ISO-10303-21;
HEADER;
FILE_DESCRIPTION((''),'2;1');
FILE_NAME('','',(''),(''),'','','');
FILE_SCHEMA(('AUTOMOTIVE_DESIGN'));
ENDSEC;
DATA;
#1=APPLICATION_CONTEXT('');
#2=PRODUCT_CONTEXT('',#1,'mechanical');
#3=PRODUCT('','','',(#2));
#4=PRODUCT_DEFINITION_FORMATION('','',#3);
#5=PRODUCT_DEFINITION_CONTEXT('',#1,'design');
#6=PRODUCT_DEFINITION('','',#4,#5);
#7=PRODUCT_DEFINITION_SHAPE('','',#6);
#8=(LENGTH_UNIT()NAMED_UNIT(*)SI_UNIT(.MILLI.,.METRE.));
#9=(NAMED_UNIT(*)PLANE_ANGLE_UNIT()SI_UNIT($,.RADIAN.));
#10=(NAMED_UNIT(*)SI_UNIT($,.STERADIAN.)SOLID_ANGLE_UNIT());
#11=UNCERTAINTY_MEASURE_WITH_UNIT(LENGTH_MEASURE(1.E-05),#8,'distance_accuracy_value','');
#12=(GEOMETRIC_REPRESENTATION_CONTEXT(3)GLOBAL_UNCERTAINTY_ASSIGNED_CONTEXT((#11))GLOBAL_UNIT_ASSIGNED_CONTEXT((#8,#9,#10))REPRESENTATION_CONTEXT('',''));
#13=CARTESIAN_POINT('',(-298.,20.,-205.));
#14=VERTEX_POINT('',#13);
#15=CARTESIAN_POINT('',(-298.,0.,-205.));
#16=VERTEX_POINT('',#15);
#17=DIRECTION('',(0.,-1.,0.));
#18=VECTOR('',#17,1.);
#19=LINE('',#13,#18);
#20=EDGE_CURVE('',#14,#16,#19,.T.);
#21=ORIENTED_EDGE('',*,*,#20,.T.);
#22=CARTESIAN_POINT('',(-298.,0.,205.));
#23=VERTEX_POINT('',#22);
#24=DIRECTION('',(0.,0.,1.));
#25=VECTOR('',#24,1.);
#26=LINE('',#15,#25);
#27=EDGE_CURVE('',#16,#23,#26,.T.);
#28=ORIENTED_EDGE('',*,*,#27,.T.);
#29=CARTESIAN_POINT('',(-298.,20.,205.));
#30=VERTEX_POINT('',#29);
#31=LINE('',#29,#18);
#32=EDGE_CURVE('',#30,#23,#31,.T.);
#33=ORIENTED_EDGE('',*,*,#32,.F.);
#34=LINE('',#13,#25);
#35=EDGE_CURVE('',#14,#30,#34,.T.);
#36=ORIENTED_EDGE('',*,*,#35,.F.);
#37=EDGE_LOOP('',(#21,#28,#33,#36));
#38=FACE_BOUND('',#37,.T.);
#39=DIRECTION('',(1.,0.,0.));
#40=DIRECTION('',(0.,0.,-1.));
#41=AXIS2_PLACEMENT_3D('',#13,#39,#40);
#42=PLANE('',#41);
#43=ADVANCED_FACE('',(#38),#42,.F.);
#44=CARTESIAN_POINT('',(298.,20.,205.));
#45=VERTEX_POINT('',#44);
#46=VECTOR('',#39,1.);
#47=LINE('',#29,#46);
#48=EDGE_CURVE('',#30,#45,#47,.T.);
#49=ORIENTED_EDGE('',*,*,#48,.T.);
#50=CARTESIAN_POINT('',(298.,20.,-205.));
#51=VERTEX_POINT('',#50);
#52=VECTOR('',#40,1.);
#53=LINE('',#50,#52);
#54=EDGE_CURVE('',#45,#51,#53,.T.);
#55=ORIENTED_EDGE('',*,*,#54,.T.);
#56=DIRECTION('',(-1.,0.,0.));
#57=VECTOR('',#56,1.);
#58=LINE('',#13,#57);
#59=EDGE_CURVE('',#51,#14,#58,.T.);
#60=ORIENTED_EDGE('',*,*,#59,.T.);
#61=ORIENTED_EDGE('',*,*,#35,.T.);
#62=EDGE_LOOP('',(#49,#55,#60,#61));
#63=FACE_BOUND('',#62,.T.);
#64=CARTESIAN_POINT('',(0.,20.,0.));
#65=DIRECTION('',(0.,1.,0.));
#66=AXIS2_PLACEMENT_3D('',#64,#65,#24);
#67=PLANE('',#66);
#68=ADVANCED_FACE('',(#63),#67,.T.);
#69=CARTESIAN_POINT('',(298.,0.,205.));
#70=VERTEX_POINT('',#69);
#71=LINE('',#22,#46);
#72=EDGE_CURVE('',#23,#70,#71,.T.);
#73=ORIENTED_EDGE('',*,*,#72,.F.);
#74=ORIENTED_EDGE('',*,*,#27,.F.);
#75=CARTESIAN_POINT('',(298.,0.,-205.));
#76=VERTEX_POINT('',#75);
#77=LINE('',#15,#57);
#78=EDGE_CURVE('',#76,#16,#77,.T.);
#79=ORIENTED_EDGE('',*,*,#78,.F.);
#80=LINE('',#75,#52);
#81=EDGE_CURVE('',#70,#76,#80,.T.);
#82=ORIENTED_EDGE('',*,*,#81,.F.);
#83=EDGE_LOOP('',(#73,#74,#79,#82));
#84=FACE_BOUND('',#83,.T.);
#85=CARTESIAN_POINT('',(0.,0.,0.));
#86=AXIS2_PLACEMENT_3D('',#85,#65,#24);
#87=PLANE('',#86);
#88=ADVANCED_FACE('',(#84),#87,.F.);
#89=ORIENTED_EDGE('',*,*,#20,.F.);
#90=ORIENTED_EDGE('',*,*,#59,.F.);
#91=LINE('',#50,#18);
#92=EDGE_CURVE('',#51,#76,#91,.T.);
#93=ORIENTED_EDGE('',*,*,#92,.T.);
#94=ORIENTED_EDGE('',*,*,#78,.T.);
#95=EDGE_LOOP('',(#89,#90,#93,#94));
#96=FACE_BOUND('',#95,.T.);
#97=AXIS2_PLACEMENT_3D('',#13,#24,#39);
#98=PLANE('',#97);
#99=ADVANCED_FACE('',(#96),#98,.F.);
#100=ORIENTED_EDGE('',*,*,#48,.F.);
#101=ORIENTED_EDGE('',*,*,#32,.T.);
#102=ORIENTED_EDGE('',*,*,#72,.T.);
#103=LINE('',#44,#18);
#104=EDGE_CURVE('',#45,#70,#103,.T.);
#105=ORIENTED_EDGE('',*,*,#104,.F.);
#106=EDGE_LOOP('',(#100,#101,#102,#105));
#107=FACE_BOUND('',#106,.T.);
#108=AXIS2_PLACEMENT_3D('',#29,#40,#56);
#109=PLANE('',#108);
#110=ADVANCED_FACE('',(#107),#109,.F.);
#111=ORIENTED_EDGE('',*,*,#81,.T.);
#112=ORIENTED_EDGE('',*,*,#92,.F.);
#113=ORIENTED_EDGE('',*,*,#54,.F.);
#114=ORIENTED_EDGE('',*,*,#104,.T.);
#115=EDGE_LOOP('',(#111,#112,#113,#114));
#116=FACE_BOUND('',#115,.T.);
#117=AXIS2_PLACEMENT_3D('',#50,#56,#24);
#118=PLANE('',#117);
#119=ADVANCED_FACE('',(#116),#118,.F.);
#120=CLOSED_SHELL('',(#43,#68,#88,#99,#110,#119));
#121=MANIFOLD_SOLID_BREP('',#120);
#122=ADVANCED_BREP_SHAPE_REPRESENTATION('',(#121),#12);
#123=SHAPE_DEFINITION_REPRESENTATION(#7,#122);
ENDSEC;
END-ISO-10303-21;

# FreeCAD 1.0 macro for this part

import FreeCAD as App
import Part
import Sketcher
from FreeCAD import Vector


def add_polygon(sketch, points):
    """Adds a closed chain of lines whose ends are joined by coincident constraints."""
    first, n = sketch.GeometryCount, len(points)
    for a, b in zip(points, points[1:] + points[:1]):
        sketch.addGeometry(Part.LineSegment(App.Vector(*a, 0), App.Vector(*b, 0)), False)
    for i in range(n):
        sketch.addConstraint(Sketcher.Constraint("Coincident", first + i, 2, first + (i + 1) % n, 1))

doc = App.newDocument("Part")
body = doc.addObject("PartDesign::Body", "Body")

# Sketch on XZ plane
sketch1 = body.newObject("Sketcher::SketchObject", "Sketch")
sketch1.AttachmentSupport = (doc.getObject("XZ_Plane"), [""])
sketch1.MapMode = "FlatFace"
add_polygon(sketch1, [(-298, -205), (-298, 205), (298, 205), (298, -205)])  # lines 0-3
sketch1.addConstraint([
    Sketcher.Constraint("Vertical", 0),
    Sketcher.Constraint("Horizontal", 1),
    Sketcher.Constraint("Vertical", 2),
    Sketcher.Constraint("Horizontal", 3),
    Sketcher.Constraint("Symmetric", 0, 2, 2, 2, -1, 1),
    Sketcher.Constraint("DistanceX", 1, 1, 1, 2, 596.0),
    Sketcher.Constraint("DistanceY", 0, 1, 0, 2, 410.0),
])
pad1 = body.newObject("PartDesign::Pad", "Pad")
pad1.Profile = sketch1
pad1.Length = 20
pad1.Reversed = True

doc.recompute()
